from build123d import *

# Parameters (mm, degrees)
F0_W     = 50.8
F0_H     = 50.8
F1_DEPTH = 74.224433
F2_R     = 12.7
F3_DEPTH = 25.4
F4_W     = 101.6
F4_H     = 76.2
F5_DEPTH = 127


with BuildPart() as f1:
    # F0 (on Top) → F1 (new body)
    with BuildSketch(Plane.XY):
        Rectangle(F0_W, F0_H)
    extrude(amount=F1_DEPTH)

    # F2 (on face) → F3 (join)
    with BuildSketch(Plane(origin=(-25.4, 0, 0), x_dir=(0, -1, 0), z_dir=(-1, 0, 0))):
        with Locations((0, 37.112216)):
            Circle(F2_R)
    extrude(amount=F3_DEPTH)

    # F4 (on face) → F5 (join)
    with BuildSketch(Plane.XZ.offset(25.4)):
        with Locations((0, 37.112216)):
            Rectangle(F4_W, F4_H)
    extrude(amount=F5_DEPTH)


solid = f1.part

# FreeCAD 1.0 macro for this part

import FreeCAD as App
import Part
import Sketcher
from FreeCAD import Vector
Q = App.Units.Quantity

doc = App.newDocument("Part")
body = doc.addObject("PartDesign::Body", "Body")

# Sketch on XY plane
sketch1 = doc.addObject("Sketcher::SketchObject", "Sketch")
body.addObject(sketch1)
sketch1.AttachmentSupport = (doc.XY_Plane, [""])
sketch1.MapMode = "FlatFace"
sketch1.addGeometry([
    Part.LineSegment(Vector(-25, 25, 0), Vector(-25, -25, 0)),
    Part.LineSegment(Vector(-25, -25, 0), Vector(25, -25, 0)),
    Part.LineSegment(Vector(25, -25, 0), Vector(25, 25, 0)),
    Part.LineSegment(Vector(25, 25, 0), Vector(-25, 25, 0)),
], False)
sketch1.addConstraint([
    Sketcher.Constraint("Coincident", 0, 2, 1, 1),
    Sketcher.Constraint("Coincident", 1, 2, 2, 1),
    Sketcher.Constraint("Coincident", 2, 2, 3, 1),
    Sketcher.Constraint("Coincident", 3, 2, 0, 1),
    Sketcher.Constraint("Vertical", 0),
    Sketcher.Constraint("Horizontal", 1),
    Sketcher.Constraint("Vertical", 2),
    Sketcher.Constraint("Horizontal", 3),
    Sketcher.Constraint("Symmetric", 0, 2, 2, 2, -1, 1),
    Sketcher.Constraint("Equal", 3, 0),
    Sketcher.Constraint("DistanceX", 1, 1, 1, 2, Q("2 in")),
])
pad1 = doc.addObject("PartDesign::Pad", "Pad")
body.addObject(pad1)
pad1.Profile = sketch1
pad1.Length = 74.224433

# Sketch on YZ plane
sketch2 = doc.addObject("Sketcher::SketchObject", "Sketch001")
body.addObject(sketch2)
sketch2.AttachmentSupport = (doc.YZ_Plane, [""])
sketch2.MapMode = "FlatFace"
sketch2.AttachmentOffset = App.Placement(Vector(0, 0, -1 * 25.4), App.Rotation())
sketch2.addGeometry(Part.Circle(Vector(0, 37, 0), Vector(0, 0, 1), 13), False)
sketch2.addConstraint([
    Sketcher.Constraint("PointOnObject", 0, 3, -2),
    Sketcher.Constraint("Diameter", 0, Q("1 in")),
    Sketcher.Constraint("DistanceY", -1, 1, 0, 3, 37.112216),
])
pad2 = doc.addObject("PartDesign::Pad", "Pad001")
body.addObject(pad2)
pad2.Profile = sketch2
pad2.Length = Q("1 in")
pad2.Reversed = True

# Sketch on XZ plane
sketch3 = doc.addObject("Sketcher::SketchObject", "Sketch002")
body.addObject(sketch3)
sketch3.AttachmentSupport = (doc.XZ_Plane, [""])
sketch3.MapMode = "FlatFace"
sketch3.AttachmentOffset = App.Placement(Vector(0, 0, 1 * 25.4), App.Rotation())
sketch3.addGeometry([
    Part.LineSegment(Vector(-51, 75, 0), Vector(-51, -1, 0)),
    Part.LineSegment(Vector(-51, -1, 0), Vector(51, -1, 0)),
    Part.LineSegment(Vector(51, -1, 0), Vector(51, 75, 0)),
    Part.LineSegment(Vector(51, 75, 0), Vector(-51, 75, 0)),
], False)
sketch3.addConstraint([
    Sketcher.Constraint("Coincident", 0, 2, 1, 1),
    Sketcher.Constraint("Coincident", 1, 2, 2, 1),
    Sketcher.Constraint("Coincident", 2, 2, 3, 1),
    Sketcher.Constraint("Coincident", 3, 2, 0, 1),
    Sketcher.Constraint("Vertical", 0),
    Sketcher.Constraint("Horizontal", 1),
    Sketcher.Constraint("Vertical", 2),
    Sketcher.Constraint("Horizontal", 3),
    Sketcher.Constraint("DistanceX", 1, 1, 1, 2, Q("4 in")),
    Sketcher.Constraint("DistanceY", 0, 2, 0, 1, Q("3 in")),
    Sketcher.Constraint("DistanceX", 0, 2, -1, 1, Q("2 in")),
    Sketcher.Constraint("DistanceY", 0, 2, -1, 1, 0.987784),
])
pad3 = doc.addObject("PartDesign::Pad", "Pad002")
body.addObject(pad3)
pad3.Profile = sketch3
pad3.Length = Q("5 in")

doc.recompute()
